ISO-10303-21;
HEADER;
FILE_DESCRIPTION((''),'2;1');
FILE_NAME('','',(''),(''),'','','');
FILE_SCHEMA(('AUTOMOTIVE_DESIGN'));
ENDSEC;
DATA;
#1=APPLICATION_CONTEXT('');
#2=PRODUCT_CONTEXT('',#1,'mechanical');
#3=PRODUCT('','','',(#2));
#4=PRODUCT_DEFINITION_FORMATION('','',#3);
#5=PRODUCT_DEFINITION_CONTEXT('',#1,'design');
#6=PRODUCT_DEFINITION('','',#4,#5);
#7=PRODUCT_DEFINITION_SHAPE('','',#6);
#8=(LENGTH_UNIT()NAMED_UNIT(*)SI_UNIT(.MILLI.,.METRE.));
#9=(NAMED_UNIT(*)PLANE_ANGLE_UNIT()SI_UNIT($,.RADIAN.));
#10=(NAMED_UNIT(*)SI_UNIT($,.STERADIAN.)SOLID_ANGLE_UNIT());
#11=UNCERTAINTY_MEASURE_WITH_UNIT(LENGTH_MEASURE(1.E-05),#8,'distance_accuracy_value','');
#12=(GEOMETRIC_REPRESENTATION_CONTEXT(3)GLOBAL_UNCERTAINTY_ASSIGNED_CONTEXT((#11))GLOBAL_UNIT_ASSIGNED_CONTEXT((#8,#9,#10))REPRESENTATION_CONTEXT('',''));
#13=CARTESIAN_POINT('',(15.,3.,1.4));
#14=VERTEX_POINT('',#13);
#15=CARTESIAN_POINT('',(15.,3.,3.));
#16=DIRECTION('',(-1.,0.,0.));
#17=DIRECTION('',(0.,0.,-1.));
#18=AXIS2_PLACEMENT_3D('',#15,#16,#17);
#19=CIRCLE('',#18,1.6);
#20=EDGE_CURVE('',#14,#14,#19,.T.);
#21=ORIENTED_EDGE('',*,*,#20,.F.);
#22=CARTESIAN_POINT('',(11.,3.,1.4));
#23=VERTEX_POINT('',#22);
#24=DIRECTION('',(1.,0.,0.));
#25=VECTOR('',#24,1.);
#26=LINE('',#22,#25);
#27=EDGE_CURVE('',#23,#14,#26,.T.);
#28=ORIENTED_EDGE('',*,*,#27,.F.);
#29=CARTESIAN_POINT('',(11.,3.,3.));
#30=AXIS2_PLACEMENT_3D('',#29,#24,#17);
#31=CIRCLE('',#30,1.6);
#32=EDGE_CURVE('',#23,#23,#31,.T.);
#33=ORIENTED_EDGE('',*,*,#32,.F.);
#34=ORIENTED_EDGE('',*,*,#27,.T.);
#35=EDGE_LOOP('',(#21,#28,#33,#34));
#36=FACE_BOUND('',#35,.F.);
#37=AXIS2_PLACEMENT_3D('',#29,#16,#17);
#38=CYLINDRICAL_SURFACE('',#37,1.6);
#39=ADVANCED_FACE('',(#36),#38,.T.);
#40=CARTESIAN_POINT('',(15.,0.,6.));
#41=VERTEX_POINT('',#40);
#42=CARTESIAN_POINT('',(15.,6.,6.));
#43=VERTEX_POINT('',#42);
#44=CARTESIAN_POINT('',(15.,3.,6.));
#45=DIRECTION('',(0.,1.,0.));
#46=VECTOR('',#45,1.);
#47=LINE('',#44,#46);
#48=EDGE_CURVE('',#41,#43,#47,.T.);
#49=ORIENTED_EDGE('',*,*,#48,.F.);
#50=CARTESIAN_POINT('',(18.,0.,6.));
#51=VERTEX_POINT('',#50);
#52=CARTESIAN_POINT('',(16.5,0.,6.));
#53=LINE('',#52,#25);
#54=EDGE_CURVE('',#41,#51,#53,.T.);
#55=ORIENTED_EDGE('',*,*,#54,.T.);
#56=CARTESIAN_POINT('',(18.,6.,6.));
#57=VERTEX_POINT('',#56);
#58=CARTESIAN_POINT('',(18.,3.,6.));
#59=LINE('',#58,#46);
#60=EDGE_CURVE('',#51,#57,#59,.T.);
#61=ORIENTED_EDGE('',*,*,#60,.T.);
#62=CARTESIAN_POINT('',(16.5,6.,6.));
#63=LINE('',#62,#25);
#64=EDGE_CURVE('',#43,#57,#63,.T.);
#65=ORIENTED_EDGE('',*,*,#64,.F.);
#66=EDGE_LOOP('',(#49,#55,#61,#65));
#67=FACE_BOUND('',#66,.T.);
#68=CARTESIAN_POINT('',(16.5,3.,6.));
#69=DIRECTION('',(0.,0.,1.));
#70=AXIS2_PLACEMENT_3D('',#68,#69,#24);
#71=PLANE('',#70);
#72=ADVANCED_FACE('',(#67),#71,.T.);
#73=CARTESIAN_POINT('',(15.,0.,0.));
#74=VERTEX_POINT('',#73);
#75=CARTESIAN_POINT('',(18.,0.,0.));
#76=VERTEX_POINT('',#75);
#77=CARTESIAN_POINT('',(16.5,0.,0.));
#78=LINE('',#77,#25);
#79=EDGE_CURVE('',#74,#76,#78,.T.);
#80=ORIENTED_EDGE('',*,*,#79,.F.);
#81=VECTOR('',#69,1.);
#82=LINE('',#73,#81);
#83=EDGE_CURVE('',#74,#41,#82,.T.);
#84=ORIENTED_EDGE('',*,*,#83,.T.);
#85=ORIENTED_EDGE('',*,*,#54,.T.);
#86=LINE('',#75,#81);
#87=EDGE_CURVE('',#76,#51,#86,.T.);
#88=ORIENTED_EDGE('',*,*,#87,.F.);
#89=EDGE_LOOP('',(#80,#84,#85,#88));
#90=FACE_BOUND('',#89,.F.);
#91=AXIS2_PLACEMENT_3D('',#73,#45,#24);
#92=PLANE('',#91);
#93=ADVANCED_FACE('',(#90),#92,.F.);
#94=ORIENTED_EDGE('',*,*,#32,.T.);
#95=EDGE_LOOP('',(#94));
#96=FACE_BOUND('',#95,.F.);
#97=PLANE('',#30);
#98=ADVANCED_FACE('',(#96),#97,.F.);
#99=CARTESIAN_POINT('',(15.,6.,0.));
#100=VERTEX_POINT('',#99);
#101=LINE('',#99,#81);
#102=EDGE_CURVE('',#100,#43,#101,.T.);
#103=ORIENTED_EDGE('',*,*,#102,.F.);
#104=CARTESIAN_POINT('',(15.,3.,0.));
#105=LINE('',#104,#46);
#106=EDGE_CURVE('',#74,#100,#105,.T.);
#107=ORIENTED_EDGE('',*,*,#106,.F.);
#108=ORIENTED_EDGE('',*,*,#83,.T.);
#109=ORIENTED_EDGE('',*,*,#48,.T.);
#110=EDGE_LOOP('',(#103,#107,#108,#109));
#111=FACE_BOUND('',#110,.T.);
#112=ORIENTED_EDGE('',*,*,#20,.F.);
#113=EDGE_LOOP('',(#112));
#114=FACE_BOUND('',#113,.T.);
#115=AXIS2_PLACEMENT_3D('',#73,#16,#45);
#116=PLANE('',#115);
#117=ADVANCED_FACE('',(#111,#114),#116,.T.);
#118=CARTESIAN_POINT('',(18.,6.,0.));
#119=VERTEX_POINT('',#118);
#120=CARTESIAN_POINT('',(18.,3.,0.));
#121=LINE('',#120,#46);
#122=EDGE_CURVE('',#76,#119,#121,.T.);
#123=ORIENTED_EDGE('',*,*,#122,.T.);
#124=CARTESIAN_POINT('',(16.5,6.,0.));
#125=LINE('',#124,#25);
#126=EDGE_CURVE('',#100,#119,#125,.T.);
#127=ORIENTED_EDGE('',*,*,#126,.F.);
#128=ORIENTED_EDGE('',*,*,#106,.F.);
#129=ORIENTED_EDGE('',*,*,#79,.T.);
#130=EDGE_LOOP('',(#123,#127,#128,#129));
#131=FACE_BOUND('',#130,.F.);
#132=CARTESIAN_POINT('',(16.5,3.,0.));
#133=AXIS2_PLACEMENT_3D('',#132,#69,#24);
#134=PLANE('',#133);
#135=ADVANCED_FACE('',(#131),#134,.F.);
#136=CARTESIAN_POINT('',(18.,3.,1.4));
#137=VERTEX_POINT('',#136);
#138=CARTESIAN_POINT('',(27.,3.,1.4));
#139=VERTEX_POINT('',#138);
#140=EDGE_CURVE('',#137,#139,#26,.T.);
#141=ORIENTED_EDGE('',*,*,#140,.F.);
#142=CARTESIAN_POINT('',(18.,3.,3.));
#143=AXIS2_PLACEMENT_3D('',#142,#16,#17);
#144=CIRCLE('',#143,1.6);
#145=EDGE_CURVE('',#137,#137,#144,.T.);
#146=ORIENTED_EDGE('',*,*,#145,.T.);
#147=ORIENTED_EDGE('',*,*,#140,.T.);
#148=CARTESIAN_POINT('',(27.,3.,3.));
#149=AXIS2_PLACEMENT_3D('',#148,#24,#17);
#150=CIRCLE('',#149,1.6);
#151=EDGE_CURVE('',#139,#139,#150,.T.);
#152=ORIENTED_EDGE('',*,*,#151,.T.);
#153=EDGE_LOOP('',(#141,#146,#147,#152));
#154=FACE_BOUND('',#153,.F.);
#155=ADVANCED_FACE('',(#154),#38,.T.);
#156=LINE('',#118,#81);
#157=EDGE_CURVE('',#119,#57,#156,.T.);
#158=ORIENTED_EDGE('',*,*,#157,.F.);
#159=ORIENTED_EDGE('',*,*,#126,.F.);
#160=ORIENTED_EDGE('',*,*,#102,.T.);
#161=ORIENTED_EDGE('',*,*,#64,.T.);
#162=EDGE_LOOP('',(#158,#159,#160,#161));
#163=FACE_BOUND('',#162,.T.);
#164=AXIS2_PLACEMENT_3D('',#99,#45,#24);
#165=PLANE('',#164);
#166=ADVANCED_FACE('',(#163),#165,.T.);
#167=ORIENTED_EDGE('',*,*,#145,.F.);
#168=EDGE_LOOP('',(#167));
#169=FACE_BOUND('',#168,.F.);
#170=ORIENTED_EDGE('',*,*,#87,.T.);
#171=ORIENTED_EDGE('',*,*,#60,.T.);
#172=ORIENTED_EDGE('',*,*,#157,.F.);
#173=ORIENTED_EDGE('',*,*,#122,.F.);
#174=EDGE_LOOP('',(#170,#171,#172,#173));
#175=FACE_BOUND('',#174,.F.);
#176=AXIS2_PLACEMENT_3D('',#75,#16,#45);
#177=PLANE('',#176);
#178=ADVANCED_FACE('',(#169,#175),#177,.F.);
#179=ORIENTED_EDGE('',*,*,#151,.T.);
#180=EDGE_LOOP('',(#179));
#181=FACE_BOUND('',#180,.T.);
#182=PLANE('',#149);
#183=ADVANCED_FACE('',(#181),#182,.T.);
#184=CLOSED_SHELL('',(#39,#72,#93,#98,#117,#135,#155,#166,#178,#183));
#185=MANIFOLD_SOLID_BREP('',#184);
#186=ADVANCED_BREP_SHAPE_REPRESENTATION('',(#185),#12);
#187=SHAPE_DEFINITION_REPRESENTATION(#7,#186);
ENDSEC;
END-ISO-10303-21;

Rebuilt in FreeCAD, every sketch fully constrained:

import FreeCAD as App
import Part
import Sketcher

V = App.Vector
Q = App.Units.Quantity


def add_polygon(sketch, points):
    """Adds a closed chain of lines whose ends are joined by coincident constraints."""
    first, n = sketch.GeometryCount, len(points)
    for a, b in zip(points, points[1:] + points[:1]):
        sketch.addGeometry(Part.LineSegment(App.Vector(*a, 0), App.Vector(*b, 0)), False)
    for i in range(n):
        sketch.addConstraint(Sketcher.Constraint("Coincident", first + i, 2, first + (i + 1) % n, 1))

doc = App.newDocument("Part")
body = doc.addObject("PartDesign::Body", "Body")

sketch1 = body.newObject("Sketcher::SketchObject", "Sketch")
sketch1.AttachmentSupport = (doc.getObject("XY_Plane"), [""])
sketch1.MapMode = "FlatFace"
add_polygon(sketch1, [(15, 6), (15, 0), (18, 0), (18, 6)])
sketch1.addConstraint(Sketcher.Constraint("Vertical", 0))
sketch1.addConstraint(Sketcher.Constraint("Horizontal", 1))
sketch1.addConstraint(Sketcher.Constraint("Vertical", 2))
sketch1.addConstraint(Sketcher.Constraint("Horizontal", 3))
sketch1.addConstraint(Sketcher.Constraint("PointOnObject", 0, 2, -1))
sketch1.addConstraint(Sketcher.Constraint("DistanceX", 1, 1, 1, 2, Q("3 mm")))
sketch1.addConstraint(Sketcher.Constraint("DistanceY", 0, 2, 0, 1, Q("6 mm")))
sketch1.addConstraint(Sketcher.Constraint("DistanceX", -1, 1, 0, 2, Q("15 mm")))
pad1 = body.newObject("PartDesign::Pad", "Pad")
pad1.Profile = sketch1
pad1.Length = 6
body2 = doc.addObject("PartDesign::Body", "Body001")

sketch2 = body2.newObject("Sketcher::SketchObject", "Sketch001")
sketch2.AttachmentSupport = (doc.getObject("YZ_Plane001"), [""])
sketch2.MapMode = "FlatFace"
sketch2.AttachmentOffset = App.Placement(V(0, 0, 11), App.Rotation())
sketch2.addGeometry(Part.Circle(V(3, 3, 0), V(0, 0, 1), 1.6), False)
sketch2.addConstraint(Sketcher.Constraint("Diameter", 0, Q("3.2 mm")))
sketch2.addConstraint(Sketcher.Constraint("DistanceX", -1, 1, 0, 3, Q("3 mm")))
sketch2.addConstraint(Sketcher.Constraint("DistanceY", -1, 1, 0, 3, Q("3 mm")))
pad2 = body2.newObject("PartDesign::Pad", "Pad001")
pad2.Profile = sketch2
pad2.Length = 16
doc.recompute()

boolean = body2.newObject("PartDesign::Boolean", "Boolean")
boolean.Type = "Fuse"
boolean.addObjects([body])

doc.recompute()
